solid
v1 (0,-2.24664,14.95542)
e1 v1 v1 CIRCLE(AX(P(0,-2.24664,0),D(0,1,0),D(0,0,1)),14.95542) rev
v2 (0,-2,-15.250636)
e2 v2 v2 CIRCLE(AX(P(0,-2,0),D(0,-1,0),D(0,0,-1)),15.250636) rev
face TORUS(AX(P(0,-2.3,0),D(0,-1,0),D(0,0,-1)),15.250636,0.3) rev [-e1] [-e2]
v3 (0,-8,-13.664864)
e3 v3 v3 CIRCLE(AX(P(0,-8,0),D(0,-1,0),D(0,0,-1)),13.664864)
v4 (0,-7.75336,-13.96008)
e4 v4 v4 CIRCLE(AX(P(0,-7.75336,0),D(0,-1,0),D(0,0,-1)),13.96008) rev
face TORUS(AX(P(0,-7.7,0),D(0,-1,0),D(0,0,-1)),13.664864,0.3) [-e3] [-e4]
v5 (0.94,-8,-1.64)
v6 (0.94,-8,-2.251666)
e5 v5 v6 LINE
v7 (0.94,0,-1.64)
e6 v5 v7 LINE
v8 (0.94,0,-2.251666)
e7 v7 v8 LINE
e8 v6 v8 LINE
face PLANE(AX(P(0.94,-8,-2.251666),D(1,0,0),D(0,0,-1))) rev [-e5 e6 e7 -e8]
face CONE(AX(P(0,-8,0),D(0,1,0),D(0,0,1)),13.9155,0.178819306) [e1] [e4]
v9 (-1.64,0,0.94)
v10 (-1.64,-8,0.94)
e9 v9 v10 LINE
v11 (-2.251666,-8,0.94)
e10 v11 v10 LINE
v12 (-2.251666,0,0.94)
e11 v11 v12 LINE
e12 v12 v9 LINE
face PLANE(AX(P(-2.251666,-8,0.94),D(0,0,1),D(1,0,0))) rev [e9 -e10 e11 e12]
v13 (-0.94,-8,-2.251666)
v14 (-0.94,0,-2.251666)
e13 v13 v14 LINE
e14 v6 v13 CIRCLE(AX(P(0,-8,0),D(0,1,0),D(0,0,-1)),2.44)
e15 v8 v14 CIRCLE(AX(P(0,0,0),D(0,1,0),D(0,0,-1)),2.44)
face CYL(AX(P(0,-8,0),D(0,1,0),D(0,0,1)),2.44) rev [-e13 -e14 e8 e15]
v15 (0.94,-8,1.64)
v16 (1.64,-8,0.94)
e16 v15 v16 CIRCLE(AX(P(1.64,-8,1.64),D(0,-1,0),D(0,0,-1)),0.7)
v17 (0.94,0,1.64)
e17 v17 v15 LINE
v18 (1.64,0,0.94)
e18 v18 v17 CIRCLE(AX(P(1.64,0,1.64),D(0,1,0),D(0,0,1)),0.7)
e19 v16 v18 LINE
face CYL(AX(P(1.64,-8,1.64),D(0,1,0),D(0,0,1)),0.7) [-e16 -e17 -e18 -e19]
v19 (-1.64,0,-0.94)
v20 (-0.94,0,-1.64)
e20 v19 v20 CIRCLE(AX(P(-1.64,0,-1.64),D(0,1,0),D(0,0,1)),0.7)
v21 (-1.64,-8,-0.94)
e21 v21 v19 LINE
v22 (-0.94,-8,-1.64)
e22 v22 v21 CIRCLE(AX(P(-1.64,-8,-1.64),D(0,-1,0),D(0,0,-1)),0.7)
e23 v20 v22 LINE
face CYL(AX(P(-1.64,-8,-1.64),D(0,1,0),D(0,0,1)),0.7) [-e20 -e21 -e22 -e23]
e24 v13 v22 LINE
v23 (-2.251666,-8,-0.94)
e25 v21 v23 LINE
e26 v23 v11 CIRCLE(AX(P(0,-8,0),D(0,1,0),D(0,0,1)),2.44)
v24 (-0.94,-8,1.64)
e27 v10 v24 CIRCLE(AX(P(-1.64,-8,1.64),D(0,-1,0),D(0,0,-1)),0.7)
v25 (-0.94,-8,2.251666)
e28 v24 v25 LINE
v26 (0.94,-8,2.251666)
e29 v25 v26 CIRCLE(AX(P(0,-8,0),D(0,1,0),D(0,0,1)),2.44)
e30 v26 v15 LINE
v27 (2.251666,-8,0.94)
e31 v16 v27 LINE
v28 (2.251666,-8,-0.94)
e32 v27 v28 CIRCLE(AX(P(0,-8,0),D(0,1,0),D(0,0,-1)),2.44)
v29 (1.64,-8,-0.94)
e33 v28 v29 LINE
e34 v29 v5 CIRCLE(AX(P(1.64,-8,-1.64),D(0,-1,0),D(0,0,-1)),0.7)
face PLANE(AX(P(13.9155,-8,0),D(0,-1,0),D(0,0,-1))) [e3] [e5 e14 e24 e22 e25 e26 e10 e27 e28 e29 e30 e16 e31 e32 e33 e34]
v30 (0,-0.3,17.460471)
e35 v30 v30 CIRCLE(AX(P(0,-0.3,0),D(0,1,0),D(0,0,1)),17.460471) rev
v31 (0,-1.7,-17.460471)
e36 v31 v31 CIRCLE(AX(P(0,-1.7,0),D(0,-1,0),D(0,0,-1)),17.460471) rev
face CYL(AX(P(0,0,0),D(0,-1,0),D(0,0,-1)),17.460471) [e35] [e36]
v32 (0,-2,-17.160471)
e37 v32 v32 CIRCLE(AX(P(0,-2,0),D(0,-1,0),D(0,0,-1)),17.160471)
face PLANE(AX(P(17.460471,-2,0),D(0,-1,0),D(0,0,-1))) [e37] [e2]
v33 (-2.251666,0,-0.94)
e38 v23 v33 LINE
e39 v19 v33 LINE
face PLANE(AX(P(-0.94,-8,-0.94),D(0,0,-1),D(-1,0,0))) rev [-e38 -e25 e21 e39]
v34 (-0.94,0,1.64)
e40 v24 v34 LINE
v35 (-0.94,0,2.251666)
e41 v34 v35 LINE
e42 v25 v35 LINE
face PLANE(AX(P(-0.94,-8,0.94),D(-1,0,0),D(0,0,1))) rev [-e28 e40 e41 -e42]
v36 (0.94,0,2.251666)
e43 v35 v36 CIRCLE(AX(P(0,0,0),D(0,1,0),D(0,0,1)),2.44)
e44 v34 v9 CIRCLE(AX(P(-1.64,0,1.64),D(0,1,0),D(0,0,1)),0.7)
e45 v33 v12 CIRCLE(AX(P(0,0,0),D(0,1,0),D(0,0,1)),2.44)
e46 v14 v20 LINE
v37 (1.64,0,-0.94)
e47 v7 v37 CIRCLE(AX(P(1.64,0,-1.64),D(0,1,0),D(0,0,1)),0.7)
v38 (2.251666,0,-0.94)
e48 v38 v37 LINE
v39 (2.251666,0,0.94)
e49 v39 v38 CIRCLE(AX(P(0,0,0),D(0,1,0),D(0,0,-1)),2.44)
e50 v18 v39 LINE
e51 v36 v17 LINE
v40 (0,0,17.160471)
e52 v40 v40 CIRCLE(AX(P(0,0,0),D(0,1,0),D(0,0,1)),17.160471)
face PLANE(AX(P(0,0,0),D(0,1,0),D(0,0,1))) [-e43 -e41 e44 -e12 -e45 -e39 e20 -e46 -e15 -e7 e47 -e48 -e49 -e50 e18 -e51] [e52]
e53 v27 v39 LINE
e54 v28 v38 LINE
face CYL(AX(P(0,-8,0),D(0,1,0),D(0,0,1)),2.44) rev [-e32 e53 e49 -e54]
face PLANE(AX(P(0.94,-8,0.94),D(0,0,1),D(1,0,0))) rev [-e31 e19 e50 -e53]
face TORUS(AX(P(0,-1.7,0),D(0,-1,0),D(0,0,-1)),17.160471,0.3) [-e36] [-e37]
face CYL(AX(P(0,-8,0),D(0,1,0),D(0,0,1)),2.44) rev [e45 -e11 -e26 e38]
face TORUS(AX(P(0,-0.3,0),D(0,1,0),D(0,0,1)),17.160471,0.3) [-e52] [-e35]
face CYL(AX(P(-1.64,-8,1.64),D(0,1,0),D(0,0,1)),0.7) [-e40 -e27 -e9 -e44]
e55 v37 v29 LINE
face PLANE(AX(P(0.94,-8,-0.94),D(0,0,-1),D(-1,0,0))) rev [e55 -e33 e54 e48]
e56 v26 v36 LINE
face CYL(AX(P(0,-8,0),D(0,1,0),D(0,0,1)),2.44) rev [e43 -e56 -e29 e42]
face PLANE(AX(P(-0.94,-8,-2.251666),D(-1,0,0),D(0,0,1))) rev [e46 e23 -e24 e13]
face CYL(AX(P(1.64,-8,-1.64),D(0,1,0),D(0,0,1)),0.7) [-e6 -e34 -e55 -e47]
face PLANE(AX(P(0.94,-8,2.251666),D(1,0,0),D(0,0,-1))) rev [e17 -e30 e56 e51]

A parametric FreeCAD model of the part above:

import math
import FreeCAD as App
import Part
import Sketcher


def edges_at(feature, points):
    """Names of the edges that pass closest to the given points."""
    edges = feature.Shape.Edges
    near = lambda p: min(range(len(edges)), key=lambda i: edges[i].distToShape(Part.Vertex(*p))[0])
    return sorted({f"Edge{near(p) + 1}" for p in points})


def add_polygon(sketch, points):
    """Adds a closed chain of lines whose ends are joined by coincident constraints."""
    first, n = sketch.GeometryCount, len(points)
    for a, b in zip(points, points[1:] + points[:1]):
        sketch.addGeometry(Part.LineSegment(App.Vector(*a, 0), App.Vector(*b, 0)), False)
    for i in range(n):
        sketch.addConstraint(Sketcher.Constraint("Coincident", first + i, 2, first + (i + 1) % n, 1))

doc = App.newDocument("Part")
body = doc.addObject("PartDesign::Body", "Body")

# Sketch on XY plane
sketch1 = body.newObject("Sketcher::SketchObject", "Sketch")
sketch1.AttachmentSupport = (doc.getObject("XY_Plane"), [""])
sketch1.MapMode = "FlatFace"
add_polygon(sketch1, [(17.5, 0), (0, 0), (0, -8), (13.9, -8), (15, -2), (17.5, -2)])  # lines 0-5
sketch1.addConstraint([
    Sketcher.Constraint("Horizontal", 0),
    Sketcher.Constraint("Vertical", 1),
    Sketcher.Constraint("Horizontal", 2),
    Sketcher.Constraint("Horizontal", 4),
    Sketcher.Constraint("Vertical", 5),
    Sketcher.Constraint("Coincident", 0, 2, -1, 1),
    Sketcher.Constraint("DistanceY", 1, 2, 1, 1, 8.0),
    Sketcher.Constraint("DistanceY", 5, 1, 5, 2, 2.0),
    Sketcher.Constraint("DistanceX", -1, 1, 3, 2, 15.0),
    Sketcher.Constraint("DistanceX", 2, 1, 2, 2, 13.9155),
    Sketcher.Constraint("DistanceX", 0, 2, 0, 1, 17.460471),
])
revolution = body.newObject("PartDesign::Revolution", "Revolution")
revolution.Profile = sketch1
revolution.ReferenceAxis = (sketch1, ["V_Axis"])
revolution.Angle = 360

# Sketch on XZ plane
sketch2 = body.newObject("Sketcher::SketchObject", "Sketch001")
sketch2.AttachmentSupport = (doc.getObject("XZ_Plane"), [""])
sketch2.MapMode = "FlatFace"
sketch2.addGeometry([
    Part.LineSegment(App.Vector(-0.9, -0.9, 0), App.Vector(-2.3, -0.9, 0)),  # 0
    Part.ArcOfCircle(Part.Circle(App.Vector(0, 0, 0), App.Vector(0, 0, 1), 2.4), math.radians(157), math.radians(203)),  # 1
    Part.LineSegment(App.Vector(-2.3, 0.9, 0), App.Vector(-0.9, 0.9, 0)),  # 2
    Part.LineSegment(App.Vector(-0.9, 0.9, 0), App.Vector(-0.9, 2.3, 0)),  # 3
    Part.ArcOfCircle(Part.Circle(App.Vector(0, 0, 0), App.Vector(0, 0, 1), 2.4), math.radians(67), math.radians(113)),  # 4
    Part.LineSegment(App.Vector(0.9, 2.3, 0), App.Vector(0.9, 0.9, 0)),  # 5
    Part.LineSegment(App.Vector(0.9, 0.9, 0), App.Vector(2.3, 0.9, 0)),  # 6
    Part.ArcOfCircle(Part.Circle(App.Vector(0, 0, 0), App.Vector(0, 0, 1), 2.4), math.radians(-23), math.radians(23)),  # 7
    Part.LineSegment(App.Vector(2.3, -0.9, 0), App.Vector(0.9, -0.9, 0)),  # 8
    Part.LineSegment(App.Vector(0.9, -0.9, 0), App.Vector(0.9, -2.3, 0)),  # 9
    Part.ArcOfCircle(Part.Circle(App.Vector(0, 0, 0), App.Vector(0, 0, 1), 2.4), math.radians(-113), math.radians(-67)),  # 10
    Part.LineSegment(App.Vector(-0.9, -2.3, 0), App.Vector(-0.9, -0.9, 0)),  # 11
], False)
sketch2.addConstraint([
    Sketcher.Constraint("Coincident", 0, 2, 1, 2),
    Sketcher.Constraint("Coincident", 1, 1, 2, 1),
    Sketcher.Constraint("Coincident", 2, 2, 3, 1),
    Sketcher.Constraint("Coincident", 3, 2, 4, 2),
    Sketcher.Constraint("Coincident", 4, 1, 5, 1),
    Sketcher.Constraint("Coincident", 5, 2, 6, 1),
    Sketcher.Constraint("Coincident", 6, 2, 7, 2),
    Sketcher.Constraint("Coincident", 7, 1, 8, 1),
    Sketcher.Constraint("Coincident", 8, 2, 9, 1),
    Sketcher.Constraint("Coincident", 9, 2, 10, 2),
    Sketcher.Constraint("Coincident", 10, 1, 11, 1),
    Sketcher.Constraint("Coincident", 11, 2, 0, 1),
    Sketcher.Constraint("Horizontal", 0),
    Sketcher.Constraint("Horizontal", 2),
    Sketcher.Constraint("Vertical", 3),
    Sketcher.Constraint("Vertical", 5),
    Sketcher.Constraint("Horizontal", 6),
    Sketcher.Constraint("Horizontal", 8),
    Sketcher.Constraint("Vertical", 9),
    Sketcher.Constraint("Vertical", 11),
    Sketcher.Constraint("Coincident", 1, 3, -1, 1),
    Sketcher.Constraint("Coincident", 4, 3, -1, 1),
    Sketcher.Constraint("Coincident", 7, 3, -1, 1),
    Sketcher.Constraint("Coincident", 10, 3, -1, 1),
    Sketcher.Constraint("Equal", 1, 4),
    Sketcher.Constraint("Equal", 4, 7),
    Sketcher.Constraint("Equal", 7, 10),
    Sketcher.Constraint("Symmetric", 2, 2, 8, 2, -1, 1),
    Sketcher.Constraint("Symmetric", 5, 2, 11, 2, -1, 1),
    Sketcher.Constraint("Symmetric", 2, 2, 5, 2, -2),
    Sketcher.Constraint("Equal", 8, 3),
    Sketcher.Constraint("Radius", 1, 2.44),
    Sketcher.Constraint("DistanceY", 0, 2, -1, 1, 0.94),
])
pocket1 = body.newObject("PartDesign::Pocket", "Pocket")
pocket1.Profile = sketch2
pocket1.Type = "ThroughAll"
pocket1.Reversed = True
doc.recompute()

fillet = body.newObject("PartDesign::Fillet", "Fillet")
fillet.Base = (pocket1, edges_at(pocket1, [
    (-0.94, -4, -0.94),
    (0.94, -4, -0.94),
    (0.94, -4, 0.94),
    (-0.94, -4, 0.94),
]))
fillet.Radius = 0.7
doc.recompute()

fillet2 = body.newObject("PartDesign::Fillet", "Fillet001")
fillet2.Base = (fillet, edges_at(fillet, [
    (0, -8, 13.915),
    (0, -2, 15),
    (0, -2, 17.46),
    (0, 0, 17.46),
]))
fillet2.Radius = 0.3

doc.recompute()
